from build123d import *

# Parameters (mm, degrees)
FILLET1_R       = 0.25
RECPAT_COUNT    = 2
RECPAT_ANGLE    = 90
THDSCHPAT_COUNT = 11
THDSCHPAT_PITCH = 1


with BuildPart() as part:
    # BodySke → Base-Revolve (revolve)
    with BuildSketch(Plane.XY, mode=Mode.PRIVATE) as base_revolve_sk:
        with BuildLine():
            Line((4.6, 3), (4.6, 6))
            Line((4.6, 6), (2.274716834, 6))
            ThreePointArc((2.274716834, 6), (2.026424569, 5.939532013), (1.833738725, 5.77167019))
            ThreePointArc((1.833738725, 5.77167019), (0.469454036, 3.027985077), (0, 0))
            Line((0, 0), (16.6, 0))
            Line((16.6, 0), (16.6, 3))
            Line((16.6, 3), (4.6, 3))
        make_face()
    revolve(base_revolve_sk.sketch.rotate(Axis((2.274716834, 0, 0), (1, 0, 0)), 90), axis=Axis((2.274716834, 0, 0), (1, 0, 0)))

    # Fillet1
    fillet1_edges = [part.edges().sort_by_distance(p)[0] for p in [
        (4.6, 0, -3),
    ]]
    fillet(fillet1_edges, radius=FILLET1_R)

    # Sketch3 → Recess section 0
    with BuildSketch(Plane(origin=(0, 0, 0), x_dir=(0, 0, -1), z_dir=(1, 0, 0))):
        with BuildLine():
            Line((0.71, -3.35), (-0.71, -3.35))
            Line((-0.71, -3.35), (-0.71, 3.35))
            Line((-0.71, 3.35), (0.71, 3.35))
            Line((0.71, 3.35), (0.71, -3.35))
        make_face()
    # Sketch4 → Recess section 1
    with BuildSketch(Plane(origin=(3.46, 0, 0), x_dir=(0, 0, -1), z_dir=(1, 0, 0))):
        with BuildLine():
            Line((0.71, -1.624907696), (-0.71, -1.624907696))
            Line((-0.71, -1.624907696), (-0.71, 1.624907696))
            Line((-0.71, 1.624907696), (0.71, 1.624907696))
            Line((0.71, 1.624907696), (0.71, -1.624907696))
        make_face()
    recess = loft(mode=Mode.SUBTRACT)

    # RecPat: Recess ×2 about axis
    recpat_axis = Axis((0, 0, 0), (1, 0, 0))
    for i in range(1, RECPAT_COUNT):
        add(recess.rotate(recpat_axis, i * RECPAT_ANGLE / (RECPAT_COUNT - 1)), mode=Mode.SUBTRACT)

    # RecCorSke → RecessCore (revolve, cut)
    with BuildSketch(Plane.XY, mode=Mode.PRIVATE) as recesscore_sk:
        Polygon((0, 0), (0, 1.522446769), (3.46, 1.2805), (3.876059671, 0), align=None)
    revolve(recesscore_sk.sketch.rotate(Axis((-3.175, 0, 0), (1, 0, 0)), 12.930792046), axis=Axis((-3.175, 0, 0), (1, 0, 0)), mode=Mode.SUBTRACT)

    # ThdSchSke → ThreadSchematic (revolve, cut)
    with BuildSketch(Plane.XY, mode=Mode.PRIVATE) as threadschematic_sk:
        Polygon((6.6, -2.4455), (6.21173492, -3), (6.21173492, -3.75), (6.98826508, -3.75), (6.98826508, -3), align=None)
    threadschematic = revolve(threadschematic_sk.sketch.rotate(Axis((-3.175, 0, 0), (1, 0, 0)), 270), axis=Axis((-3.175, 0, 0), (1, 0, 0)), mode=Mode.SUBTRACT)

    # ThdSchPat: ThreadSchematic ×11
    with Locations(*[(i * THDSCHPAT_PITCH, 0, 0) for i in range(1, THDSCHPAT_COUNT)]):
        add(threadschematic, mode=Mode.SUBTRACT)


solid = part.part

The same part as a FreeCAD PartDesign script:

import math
import FreeCAD as App
import Part
import Sketcher
from FreeCAD import Vector
Q = App.Units.Quantity


def edges_at(feature, points):
    """Names of the edges that pass closest to the given points."""
    edges = feature.Shape.Edges
    near = lambda p: min(range(len(edges)), key=lambda i: edges[i].distToShape(Part.Vertex(*p))[0])
    return sorted({f"Edge{near(p) + 1}" for p in points})

doc = App.newDocument("Part")
body = doc.addObject("PartDesign::Body", "Body")

# Sketch on XY plane
sketch1 = body.newObject("Sketcher::SketchObject", "Sketch")
sketch1.AttachmentSupport = (doc.getObject("XY_Plane"), [""])
sketch1.MapMode = "FlatFace"
sketch1.addGeometry(Part.LineSegment(Vector(4.6, 3, 0), Vector(4.6, 6, 0)), False)
sketch1.addGeometry(Part.LineSegment(Vector(4.6, 6, 0), Vector(2.27, 6, 0)), False)
sketch1.addGeometry(Part.ArcOfCircle(Part.Circle(Vector(2.27, 5.46, 0), Vector(0, 0, 1), 0.54), math.radians(90), math.radians(145)), False)
sketch1.addGeometry(Part.ArcOfCircle(Part.Circle(Vector(10, 0, 0), Vector(0, 0, 1), 10), math.radians(145), math.radians(180)), False)
sketch1.addGeometry(Part.LineSegment(Vector(0, 0, 0), Vector(16.6, 0, 0)), False)
sketch1.addGeometry(Part.LineSegment(Vector(16.6, 0, 0), Vector(16.6, 3, 0)), False)
sketch1.addGeometry(Part.LineSegment(Vector(16.6, 3, 0), Vector(4.6, 3, 0)), False)
sketch1.addConstraint(Sketcher.Constraint("Coincident", 0, 2, 1, 1))
sketch1.addConstraint(Sketcher.Constraint("Tangent", 1, 2, 2, 1))
sketch1.addConstraint(Sketcher.Constraint("Tangent", 2, 2, 3, 1))
sketch1.addConstraint(Sketcher.Constraint("Coincident", 3, 2, 4, 1))
sketch1.addConstraint(Sketcher.Constraint("Coincident", 4, 2, 5, 1))
sketch1.addConstraint(Sketcher.Constraint("Coincident", 5, 2, 6, 1))
sketch1.addConstraint(Sketcher.Constraint("Coincident", 6, 2, 0, 1))
sketch1.addConstraint(Sketcher.Constraint("Vertical", 0))
sketch1.addConstraint(Sketcher.Constraint("Horizontal", 1))
sketch1.addConstraint(Sketcher.Constraint("Horizontal", 4))
sketch1.addConstraint(Sketcher.Constraint("Vertical", 5))
sketch1.addConstraint(Sketcher.Constraint("Horizontal", 6))
sketch1.addConstraint(Sketcher.Constraint("Coincident", 3, 2, -1, 1))
sketch1.addConstraint(Sketcher.Constraint("PointOnObject", 3, 3, -1))
sketch1.addConstraint(Sketcher.Constraint("Equal", 0, 5))
sketch1.addConstraint(Sketcher.Constraint("Radius", 3, Q("10 mm")))
sketch1.addConstraint(Sketcher.Constraint("DistanceX", 6, 2, 6, 1, Q("12 mm")))
sketch1.addConstraint(Sketcher.Constraint("DistanceY", 0, 1, 0, 2, Q("3 mm")))
sketch1.addConstraint(Sketcher.Constraint("Radius", 2, Q("0.54 mm")))
sketch1.addConstraint(Sketcher.Constraint("DistanceX", 4, 1, 4, 2, Q("16.6 mm")))
revolution = body.newObject("PartDesign::Revolution", "Revolution")
revolution.Profile = sketch1
revolution.ReferenceAxis = (sketch1, ["H_Axis"])
revolution.Angle = 360
doc.recompute()

fillet = body.newObject("PartDesign::Fillet", "Fillet")
fillet.Base = (revolution, edges_at(revolution, [(4.6, 0, -3)]))
fillet.Radius = 0.25

# Sketch on YZ plane
sketch2 = body.newObject("Sketcher::SketchObject", "Sketch001")
sketch2.AttachmentSupport = (doc.getObject("YZ_Plane"), [""])
sketch2.MapMode = "FlatFace"
sketch2.addGeometry(Part.LineSegment(Vector(-3.4, 0.7, 0), Vector(-3.4, -0.7, 0)), False)
sketch2.addGeometry(Part.LineSegment(Vector(-3.4, -0.7, 0), Vector(3.4, -0.7, 0)), False)
sketch2.addGeometry(Part.LineSegment(Vector(3.4, -0.7, 0), Vector(3.4, 0.7, 0)), False)
sketch2.addGeometry(Part.LineSegment(Vector(3.4, 0.7, 0), Vector(-3.4, 0.7, 0)), False)
sketch2.addConstraint(Sketcher.Constraint("Coincident", 0, 2, 1, 1))
sketch2.addConstraint(Sketcher.Constraint("Coincident", 1, 2, 2, 1))
sketch2.addConstraint(Sketcher.Constraint("Coincident", 2, 2, 3, 1))
sketch2.addConstraint(Sketcher.Constraint("Coincident", 3, 2, 0, 1))
sketch2.addConstraint(Sketcher.Constraint("Vertical", 0))
sketch2.addConstraint(Sketcher.Constraint("Horizontal", 1))
sketch2.addConstraint(Sketcher.Constraint("Vertical", 2))
sketch2.addConstraint(Sketcher.Constraint("Horizontal", 3))
sketch2.addConstraint(Sketcher.Constraint("Symmetric", 0, 2, 2, 2, -1, 1))
sketch2.addConstraint(Sketcher.Constraint("DistanceX", 1, 1, 1, 2, Q("6.7 mm")))
sketch2.addConstraint(Sketcher.Constraint("DistanceY", 0, 2, 0, 1, Q("1.42 mm")))

# Sketch on YZ plane
sketch3 = body.newObject("Sketcher::SketchObject", "Sketch002")
sketch3.AttachmentSupport = (doc.getObject("YZ_Plane"), [""])
sketch3.MapMode = "FlatFace"
sketch3.AttachmentOffset = App.Placement(Vector(0, 0, 3.46), App.Rotation())
sketch3.addGeometry(Part.LineSegment(Vector(-1.6, 0.7, 0), Vector(-1.6, -0.7, 0)), False)
sketch3.addGeometry(Part.LineSegment(Vector(-1.6, -0.7, 0), Vector(1.6, -0.7, 0)), False)
sketch3.addGeometry(Part.LineSegment(Vector(1.6, -0.7, 0), Vector(1.6, 0.7, 0)), False)
sketch3.addGeometry(Part.LineSegment(Vector(1.6, 0.7, 0), Vector(-1.6, 0.7, 0)), False)
sketch3.addConstraint(Sketcher.Constraint("Coincident", 0, 2, 1, 1))
sketch3.addConstraint(Sketcher.Constraint("Coincident", 1, 2, 2, 1))
sketch3.addConstraint(Sketcher.Constraint("Coincident", 2, 2, 3, 1))
sketch3.addConstraint(Sketcher.Constraint("Coincident", 3, 2, 0, 1))
sketch3.addConstraint(Sketcher.Constraint("Vertical", 0))
sketch3.addConstraint(Sketcher.Constraint("Horizontal", 1))
sketch3.addConstraint(Sketcher.Constraint("Vertical", 2))
sketch3.addConstraint(Sketcher.Constraint("Horizontal", 3))
sketch3.addConstraint(Sketcher.Constraint("Symmetric", 0, 2, 2, 2, -1, 1))
sketch3.addConstraint(Sketcher.Constraint("DistanceY", 0, 2, 0, 1, Q("1.42 mm")))
sketch3.addConstraint(Sketcher.Constraint("DistanceX", 1, 1, 1, 2, Q("3.249815 mm")))

subtractiveloft = body.newObject("PartDesign::SubtractiveLoft", "SubtractiveLoft")
subtractiveloft.Profile = sketch2
subtractiveloft.Sections = [sketch3]
doc.recompute()

polarpattern = body.newObject("PartDesign::PolarPattern", "PolarPattern")
polarpattern.Originals = [subtractiveloft]
polarpattern.Axis = (doc.getObject("X_Axis"), [""])
polarpattern.Angle = 90
polarpattern.Occurrences = 2
body.Tip = polarpattern

# Sketch on XY plane
sketch4 = body.newObject("Sketcher::SketchObject", "Sketch003")
sketch4.AttachmentSupport = (doc.getObject("XY_Plane"), [""])
sketch4.MapMode = "FlatFace"
sketch4.addGeometry(Part.LineSegment(Vector(0, 1.5, 0), Vector(0, 0, 0)), False)
sketch4.addGeometry(Part.LineSegment(Vector(0, 0, 0), Vector(3.9, 0, 0)), False)
sketch4.addGeometry(Part.LineSegment(Vector(3.9, 0, 0), Vector(3.5, 1.3, 0)), False)
sketch4.addGeometry(Part.LineSegment(Vector(3.5, 1.3, 0), Vector(0, 1.5, 0)), False)
sketch4.addConstraint(Sketcher.Constraint("Coincident", 0, 2, 1, 1))
sketch4.addConstraint(Sketcher.Constraint("Coincident", 1, 2, 2, 1))
sketch4.addConstraint(Sketcher.Constraint("Coincident", 2, 2, 3, 1))
sketch4.addConstraint(Sketcher.Constraint("Coincident", 3, 2, 0, 1))
sketch4.addConstraint(Sketcher.Constraint("Vertical", 0))
sketch4.addConstraint(Sketcher.Constraint("Horizontal", 1))
sketch4.addConstraint(Sketcher.Constraint("Coincident", 0, 2, -1, 1))
sketch4.addConstraint(Sketcher.Constraint("Angle", 2, Q("108 deg")))
sketch4.addConstraint(Sketcher.Constraint("Angle", 3, Q("176 deg")))
sketch4.addConstraint(Sketcher.Constraint("DistanceX", -1, 1, 2, 2, Q("3.46 mm")))
sketch4.addConstraint(Sketcher.Constraint("DistanceX", 1, 1, 1, 2, Q("3.87606 mm")))
groove = body.newObject("PartDesign::Groove", "Groove")
groove.Profile = sketch4
groove.ReferenceAxis = (sketch4, ["H_Axis"])
groove.Angle = 360

# Sketch on XY plane
sketch5 = body.newObject("Sketcher::SketchObject", "Sketch004")
sketch5.AttachmentSupport = (doc.getObject("XY_Plane"), [""])
sketch5.MapMode = "FlatFace"
sketch5.addGeometry(Part.LineSegment(Vector(6.6, -2.4, 0), Vector(6.2, -3, 0)), False)
sketch5.addGeometry(Part.LineSegment(Vector(6.2, -3, 0), Vector(6.2, -3.8, 0)), False)
sketch5.addGeometry(Part.LineSegment(Vector(6.2, -3.8, 0), Vector(7, -3.8, 0)), False)
sketch5.addGeometry(Part.LineSegment(Vector(7, -3.8, 0), Vector(7, -3, 0)), False)
sketch5.addGeometry(Part.LineSegment(Vector(7, -3, 0), Vector(6.6, -2.4, 0)), False)
sketch5.addConstraint(Sketcher.Constraint("Coincident", 0, 2, 1, 1))
sketch5.addConstraint(Sketcher.Constraint("Coincident", 1, 2, 2, 1))
sketch5.addConstraint(Sketcher.Constraint("Coincident", 2, 2, 3, 1))
sketch5.addConstraint(Sketcher.Constraint("Coincident", 3, 2, 4, 1))
sketch5.addConstraint(Sketcher.Constraint("Coincident", 4, 2, 0, 1))
sketch5.addConstraint(Sketcher.Constraint("Vertical", 1))
sketch5.addConstraint(Sketcher.Constraint("Horizontal", 2))
sketch5.addConstraint(Sketcher.Constraint("Vertical", 3))
sketch5.addConstraint(Sketcher.Constraint("Horizontal", 0, 2, 3, 2))
sketch5.addConstraint(Sketcher.Constraint("Equal", 0, 4))
sketch5.addConstraint(Sketcher.Constraint("Angle", 0, Q("-125 deg")))
sketch5.addConstraint(Sketcher.Constraint("DistanceY", 0, 2, -1, 1, Q("3 mm")))
sketch5.addConstraint(Sketcher.Constraint("DistanceY", 1, 2, 1, 1, Q("0.75 mm")))
sketch5.addConstraint(Sketcher.Constraint("DistanceX", -1, 1, 4, 2, Q("6.6 mm")))
sketch5.addConstraint(Sketcher.Constraint("DistanceX", 2, 1, 2, 2, Q("0.77653 mm")))
groove2 = body.newObject("PartDesign::Groove", "Groove001")
groove2.Profile = sketch5
groove2.ReferenceAxis = (sketch5, ["H_Axis"])
groove2.Angle = 360
doc.recompute()

linearpattern = body.newObject("PartDesign::LinearPattern", "LinearPattern")
linearpattern.Originals = [groove2]
linearpattern.Direction = (doc.getObject("X_Axis"), [""])
linearpattern.Mode = "offset"
linearpattern.Offset = 1
linearpattern.Occurrences = 11
body.Tip = linearpattern

doc.recompute()
